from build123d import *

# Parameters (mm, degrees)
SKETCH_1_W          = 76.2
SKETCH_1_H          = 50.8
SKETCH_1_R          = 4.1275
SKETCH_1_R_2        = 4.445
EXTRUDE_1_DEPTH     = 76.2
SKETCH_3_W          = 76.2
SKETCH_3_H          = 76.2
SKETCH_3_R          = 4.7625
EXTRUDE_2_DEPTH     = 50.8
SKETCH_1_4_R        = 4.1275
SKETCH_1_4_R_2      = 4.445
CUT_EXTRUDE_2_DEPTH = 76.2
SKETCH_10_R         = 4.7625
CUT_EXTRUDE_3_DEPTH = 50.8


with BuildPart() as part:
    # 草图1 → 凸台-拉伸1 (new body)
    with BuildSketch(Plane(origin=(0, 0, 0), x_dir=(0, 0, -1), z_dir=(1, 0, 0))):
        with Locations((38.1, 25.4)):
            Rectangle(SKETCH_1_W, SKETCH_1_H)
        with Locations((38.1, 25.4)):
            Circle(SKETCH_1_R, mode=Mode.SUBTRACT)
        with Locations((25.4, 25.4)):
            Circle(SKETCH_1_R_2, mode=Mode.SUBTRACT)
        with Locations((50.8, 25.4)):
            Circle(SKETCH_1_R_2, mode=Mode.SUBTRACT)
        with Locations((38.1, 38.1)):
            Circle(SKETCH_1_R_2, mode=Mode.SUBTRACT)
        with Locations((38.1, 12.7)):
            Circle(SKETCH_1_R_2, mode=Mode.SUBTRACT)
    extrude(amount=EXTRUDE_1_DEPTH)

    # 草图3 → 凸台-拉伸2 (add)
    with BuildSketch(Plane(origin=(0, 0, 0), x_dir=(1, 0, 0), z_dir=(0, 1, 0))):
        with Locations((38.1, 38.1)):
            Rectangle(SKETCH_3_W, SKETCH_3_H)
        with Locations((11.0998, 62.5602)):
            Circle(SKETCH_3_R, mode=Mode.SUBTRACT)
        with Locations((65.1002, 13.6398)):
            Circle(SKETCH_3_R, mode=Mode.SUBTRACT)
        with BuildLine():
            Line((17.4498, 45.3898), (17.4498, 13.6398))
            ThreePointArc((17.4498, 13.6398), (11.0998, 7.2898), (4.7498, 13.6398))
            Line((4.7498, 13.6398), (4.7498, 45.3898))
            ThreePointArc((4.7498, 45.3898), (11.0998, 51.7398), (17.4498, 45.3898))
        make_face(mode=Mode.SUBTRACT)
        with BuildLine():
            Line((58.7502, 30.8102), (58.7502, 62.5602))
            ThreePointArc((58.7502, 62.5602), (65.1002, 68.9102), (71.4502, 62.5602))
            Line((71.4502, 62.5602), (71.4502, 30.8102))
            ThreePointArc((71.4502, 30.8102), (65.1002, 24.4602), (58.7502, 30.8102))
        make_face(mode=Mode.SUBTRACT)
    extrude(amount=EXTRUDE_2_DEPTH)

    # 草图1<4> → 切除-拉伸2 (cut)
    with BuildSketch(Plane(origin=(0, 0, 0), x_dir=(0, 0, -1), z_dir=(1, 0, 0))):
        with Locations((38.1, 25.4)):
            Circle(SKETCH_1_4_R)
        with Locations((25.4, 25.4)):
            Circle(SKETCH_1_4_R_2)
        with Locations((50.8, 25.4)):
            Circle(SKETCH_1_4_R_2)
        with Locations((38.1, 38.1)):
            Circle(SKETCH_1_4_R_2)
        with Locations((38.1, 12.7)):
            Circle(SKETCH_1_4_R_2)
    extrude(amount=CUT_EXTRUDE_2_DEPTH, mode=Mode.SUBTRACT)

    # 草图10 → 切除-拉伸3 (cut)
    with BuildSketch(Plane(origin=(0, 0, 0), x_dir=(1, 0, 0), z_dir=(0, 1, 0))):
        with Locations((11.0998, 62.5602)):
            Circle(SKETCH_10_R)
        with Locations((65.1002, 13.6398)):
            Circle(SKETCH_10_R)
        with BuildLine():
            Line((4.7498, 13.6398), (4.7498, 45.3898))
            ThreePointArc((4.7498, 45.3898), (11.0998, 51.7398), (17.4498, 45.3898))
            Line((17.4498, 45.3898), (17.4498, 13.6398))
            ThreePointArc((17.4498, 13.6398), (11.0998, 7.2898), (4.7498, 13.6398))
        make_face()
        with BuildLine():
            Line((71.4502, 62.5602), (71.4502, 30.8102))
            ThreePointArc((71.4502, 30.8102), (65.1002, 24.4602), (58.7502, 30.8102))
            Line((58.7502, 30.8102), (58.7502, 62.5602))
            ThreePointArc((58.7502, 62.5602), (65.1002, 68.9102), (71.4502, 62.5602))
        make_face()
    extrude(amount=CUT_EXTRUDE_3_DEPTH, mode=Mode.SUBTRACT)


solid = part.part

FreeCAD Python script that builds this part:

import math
import FreeCAD as App
import Part
import Sketcher
from FreeCAD import Vector
Q = App.Units.Quantity

doc = App.newDocument("Part")
body = doc.addObject("PartDesign::Body", "Body")

# Sketch on YZ plane
sketch1 = body.newObject("Sketcher::SketchObject", "Sketch")
sketch1.AttachmentSupport = (doc.getObject("YZ_Plane"), [""])
sketch1.MapMode = "FlatFace"
sketch1.addGeometry([
    Part.LineSegment(Vector(50.8, 0, 0), Vector(0, 0, 0)),  # 0
    Part.LineSegment(Vector(0, 0, 0), Vector(0, -76.2, 0)),  # 1
    Part.LineSegment(Vector(0, -76.2, 0), Vector(50.8, -76.2, 0)),  # 2
    Part.LineSegment(Vector(50.8, -76.2, 0), Vector(50.8, 0, 0)),  # 3
    Part.Circle(Vector(25.4, -25.4, 0), Vector(0, 0, 1), 4.445),  # 4
    Part.Circle(Vector(12.7, -38.1, 0), Vector(0, 0, 1), 4.445),  # 5
    Part.Circle(Vector(25.4, -38.1, 0), Vector(0, 0, 1), 4.1275),  # 6
    Part.Circle(Vector(25.4, -50.8, 0), Vector(0, 0, 1), 4.445),  # 7
    Part.Circle(Vector(38.1, -38.1, 0), Vector(0, 0, 1), 4.445),  # 8
], False)
sketch1.addConstraint([
    Sketcher.Constraint("Coincident", 0, 2, 1, 1),
    Sketcher.Constraint("Coincident", 1, 2, 2, 1),
    Sketcher.Constraint("Coincident", 2, 2, 3, 1),
    Sketcher.Constraint("Coincident", 3, 2, 0, 1),
    Sketcher.Constraint("Horizontal", 0),
    Sketcher.Constraint("Vertical", 1),
    Sketcher.Constraint("Horizontal", 2),
    Sketcher.Constraint("Vertical", 3),
    Sketcher.Constraint("Coincident", 0, 2, -1, 1),
    Sketcher.Constraint("Equal", 4, 5),
    Sketcher.Constraint("Equal", 5, 7),
    Sketcher.Constraint("Equal", 7, 8),
    Sketcher.Constraint("Horizontal", 5, 3, 6, 3),
    Sketcher.Constraint("Horizontal", 6, 3, 8, 3),
    Sketcher.Constraint("Vertical", 4, 3, 6, 3),
    Sketcher.Constraint("Vertical", 6, 3, 7, 3),
    Sketcher.Constraint("Diameter", 4, Q("0.35 in")),
    Sketcher.Constraint("DistanceX", 0, 2, 0, 1, Q("2 in")),
    Sketcher.Constraint("DistanceY", 1, 2, 1, 1, Q("3 in")),
    Sketcher.Constraint("Diameter", 6, Q("0.325 in")),
    Sketcher.Constraint("DistanceX", -1, 1, 4, 3, Q("1 in")),
    Sketcher.Constraint("DistanceY", 4, 3, -1, 1, Q("1 in")),
    Sketcher.Constraint("DistanceY", 7, 3, -1, 1, Q("2 in")),
    Sketcher.Constraint("DistanceX", 5, 3, 8, 3, Q("1 in")),
    Sketcher.Constraint("DistanceX", -1, 1, 5, 3, Q("0.5 in")),
    Sketcher.Constraint("DistanceY", 5, 3, -1, 1, Q("1.5 in")),
])
pad1 = body.newObject("PartDesign::Pad", "Pad")
pad1.Profile = sketch1
pad1.Length = Q("3 in")

# Sketch on XZ plane
sketch2 = body.newObject("Sketcher::SketchObject", "Sketch001")
sketch2.AttachmentSupport = (doc.getObject("XZ_Plane"), [""])
sketch2.MapMode = "FlatFace"
sketch2.addGeometry([
    Part.LineSegment(Vector(0, -76.2, 0), Vector(0, 0, 0)),  # 0
    Part.LineSegment(Vector(0, 0, 0), Vector(76.2, 0, 0)),  # 1
    Part.LineSegment(Vector(76.2, 0, 0), Vector(76.2, -76.2, 0)),  # 2
    Part.LineSegment(Vector(76.2, -76.2, 0), Vector(0, -76.2, 0)),  # 3
    Part.ArcOfCircle(Part.Circle(Vector(11.0998, -45.3898, 0), Vector(0, 0, 1), 6.35), math.radians(180), math.radians(360)),  # 4
    Part.LineSegment(Vector(17.4498, -45.3898, 0), Vector(17.4498, -13.6398, 0)),  # 5
    Part.ArcOfCircle(Part.Circle(Vector(11.0998, -13.6398, 0), Vector(0, 0, 1), 6.35), math.radians(0), math.radians(180)),  # 6
    Part.LineSegment(Vector(4.7498, -13.6398, 0), Vector(4.7498, -45.3898, 0)),  # 7
    Part.Circle(Vector(65.1002, -13.6398, 0), Vector(0, 0, 1), 4.7625),  # 8
    Part.Circle(Vector(11.0998, -62.5602, 0), Vector(0, 0, 1), 4.7625),  # 9
    Part.ArcOfCircle(Part.Circle(Vector(65.1002, -30.8102, 0), Vector(0, 0, 1), 6.35), math.radians(0), math.radians(180)),  # 10
    Part.LineSegment(Vector(58.7502, -30.8102, 0), Vector(58.7502, -62.5602, 0)),  # 11
    Part.ArcOfCircle(Part.Circle(Vector(65.1002, -62.5602, 0), Vector(0, 0, 1), 6.35), math.radians(180), math.radians(360)),  # 12
    Part.LineSegment(Vector(71.4502, -62.5602, 0), Vector(71.4502, -30.8102, 0)),  # 13
], False)
sketch2.addConstraint([
    Sketcher.Constraint("Coincident", 0, 2, 1, 1),
    Sketcher.Constraint("Coincident", 1, 2, 2, 1),
    Sketcher.Constraint("Coincident", 2, 2, 3, 1),
    Sketcher.Constraint("Coincident", 3, 2, 0, 1),
    Sketcher.Constraint("Tangent", 4, 2, 5, 1),
    Sketcher.Constraint("Tangent", 5, 2, 6, 1),
    Sketcher.Constraint("Tangent", 6, 2, 7, 1),
    Sketcher.Constraint("Tangent", 7, 2, 4, 1),
    Sketcher.Constraint("Tangent", 10, 2, 11, 1),
    Sketcher.Constraint("Tangent", 11, 2, 12, 1),
    Sketcher.Constraint("Tangent", 12, 2, 13, 1),
    Sketcher.Constraint("Tangent", 13, 2, 10, 1),
    Sketcher.Constraint("Vertical", 0),
    Sketcher.Constraint("Horizontal", 1),
    Sketcher.Constraint("Vertical", 2),
    Sketcher.Constraint("Horizontal", 3),
    Sketcher.Constraint("Vertical", 5),
    Sketcher.Constraint("Vertical", 7),
    Sketcher.Constraint("Vertical", 11),
    Sketcher.Constraint("Vertical", 13),
    Sketcher.Constraint("Coincident", 0, 2, -1, 1),
    Sketcher.Constraint("Equal", 8, 9),
    Sketcher.Constraint("Equal", 6, 10),
    Sketcher.Constraint("Horizontal", 6, 3, 8, 3),
    Sketcher.Constraint("Horizontal", 9, 3, 12, 3),
    Sketcher.Constraint("Vertical", 6, 3, 9, 3),
    Sketcher.Constraint("Vertical", 8, 3, 10, 3),
    Sketcher.Constraint("Equal", 3, 0),
    Sketcher.Constraint("Equal", 7, 11),
    Sketcher.Constraint("DistanceX", 1, 1, 1, 2, Q("3 in")),
    Sketcher.Constraint("Radius", 4, Q("0.25 in")),
    Sketcher.Constraint("Diameter", 8, Q("0.375 in")),
    Sketcher.Constraint("DistanceY", 5, 1, 5, 2, Q("1.25 in")),
    Sketcher.Constraint("DistanceX", -1, 1, 4, 3, Q("0.437 in")),
    Sketcher.Constraint("DistanceY", 4, 3, -1, 1, Q("1.787 in")),
    Sketcher.Constraint("DistanceX", -1, 1, 8, 3, Q("2.563 in")),
    Sketcher.Constraint("DistanceY", 9, 3, -1, 1, Q("2.463 in")),
])
pad2 = body.newObject("PartDesign::Pad", "Pad001")
pad2.Profile = sketch2
pad2.Length = Q("2 in")
pad2.Reversed = True

# Sketch on YZ plane
sketch3 = body.newObject("Sketcher::SketchObject", "Sketch002")
sketch3.AttachmentSupport = (doc.getObject("YZ_Plane"), [""])
sketch3.MapMode = "FlatFace"
sketch3.addGeometry([
    Part.Circle(Vector(25.4, -38.1, 0), Vector(0, 0, 1), 4.1275),  # 0
    Part.Circle(Vector(25.4, -25.4, 0), Vector(0, 0, 1), 4.445),  # 1
    Part.Circle(Vector(25.4, -50.8, 0), Vector(0, 0, 1), 4.445),  # 2
    Part.Circle(Vector(38.1, -38.1, 0), Vector(0, 0, 1), 4.445),  # 3
    Part.Circle(Vector(12.7, -38.1, 0), Vector(0, 0, 1), 4.445),  # 4
], False)
sketch3.addConstraint([
    Sketcher.Constraint("Equal", 1, 2),
    Sketcher.Constraint("Equal", 2, 3),
    Sketcher.Constraint("Equal", 3, 4),
    Sketcher.Constraint("Horizontal", 0, 3, 3, 3),
    Sketcher.Constraint("Horizontal", 3, 3, 4, 3),
    Sketcher.Constraint("Vertical", 0, 3, 1, 3),
    Sketcher.Constraint("Vertical", 1, 3, 2, 3),
    Sketcher.Constraint("Diameter", 1, Q("0.35 in")),
    Sketcher.Constraint("Diameter", 0, Q("0.325 in")),
    Sketcher.Constraint("DistanceX", -1, 1, 0, 3, Q("1 in")),
    Sketcher.Constraint("DistanceY", 1, 3, -1, 1, Q("1 in")),
    Sketcher.Constraint("DistanceY", 2, 3, -1, 1, Q("2 in")),
    Sketcher.Constraint("DistanceX", 4, 3, 3, 3, Q("1 in")),
    Sketcher.Constraint("DistanceY", 0, 3, -1, 1, Q("1.5 in")),
    Sketcher.Constraint("DistanceX", -1, 1, 3, 3, Q("1.5 in")),
])
pocket1 = body.newObject("PartDesign::Pocket", "Pocket")
pocket1.Profile = sketch3
pocket1.Length = Q("3 in")
pocket1.Reversed = True

# Sketch on XZ plane
sketch4 = body.newObject("Sketcher::SketchObject", "Sketch003")
sketch4.AttachmentSupport = (doc.getObject("XZ_Plane"), [""])
sketch4.MapMode = "FlatFace"
sketch4.addGeometry([
    Part.Circle(Vector(11.0998, -62.5602, 0), Vector(0, 0, 1), 4.7625),  # 0
    Part.Circle(Vector(65.1002, -13.6398, 0), Vector(0, 0, 1), 4.7625),  # 1
    Part.LineSegment(Vector(4.7498, -45.3898, 0), Vector(4.7498, -13.6398, 0)),  # 2
    Part.ArcOfCircle(Part.Circle(Vector(11.0998, -13.6398, 0), Vector(0, 0, 1), 6.35), math.radians(0), math.radians(180)),  # 3
    Part.LineSegment(Vector(17.4498, -13.6398, 0), Vector(17.4498, -45.3898, 0)),  # 4
    Part.ArcOfCircle(Part.Circle(Vector(11.0998, -45.3898, 0), Vector(0, 0, 1), 6.35), math.radians(180), math.radians(360)),  # 5
    Part.LineSegment(Vector(71.4502, -30.8102, 0), Vector(71.4502, -62.5602, 0)),  # 6
    Part.ArcOfCircle(Part.Circle(Vector(65.1002, -62.5602, 0), Vector(0, 0, 1), 6.35), math.radians(180), math.radians(360)),  # 7
    Part.LineSegment(Vector(58.7502, -62.5602, 0), Vector(58.7502, -30.8102, 0)),  # 8
    Part.ArcOfCircle(Part.Circle(Vector(65.1002, -30.8102, 0), Vector(0, 0, 1), 6.35), math.radians(0), math.radians(180)),  # 9
], False)
sketch4.addConstraint([
    Sketcher.Constraint("Tangent", 2, 2, 3, 2),
    Sketcher.Constraint("Tangent", 3, 1, 4, 1),
    Sketcher.Constraint("Tangent", 4, 2, 5, 2),
    Sketcher.Constraint("Tangent", 5, 1, 2, 1),
    Sketcher.Constraint("Tangent", 6, 2, 7, 2),
    Sketcher.Constraint("Tangent", 7, 1, 8, 1),
    Sketcher.Constraint("Tangent", 8, 2, 9, 2),
    Sketcher.Constraint("Tangent", 9, 1, 6, 1),
    Sketcher.Constraint("Vertical", 2),
    Sketcher.Constraint("Vertical", 4),
    Sketcher.Constraint("Vertical", 6),
    Sketcher.Constraint("Vertical", 8),
    Sketcher.Constraint("Equal", 0, 1),
    Sketcher.Constraint("Equal", 5, 7),
    Sketcher.Constraint("Horizontal", 1, 3, 3, 3),
    Sketcher.Constraint("Horizontal", 0, 3, 7, 3),
    Sketcher.Constraint("Vertical", 0, 3, 3, 3),
    Sketcher.Constraint("Vertical", 1, 3, 7, 3),
    Sketcher.Constraint("Equal", 4, 6),
    Sketcher.Constraint("Radius", 3, Q("0.25 in")),
    Sketcher.Constraint("Diameter", 0, Q("0.375 in")),
    Sketcher.Constraint("DistanceY", 2, 1, 2, 2, Q("1.25 in")),
    Sketcher.Constraint("DistanceX", -1, 1, 0, 3, Q("0.437 in")),
    Sketcher.Constraint("DistanceY", 0, 3, -1, 1, Q("2.463 in")),
    Sketcher.Constraint("DistanceX", -1, 1, 1, 3, Q("2.563 in")),
    Sketcher.Constraint("DistanceY", 1, 3, -1, 1, Q("0.537 in")),
])
pocket2 = body.newObject("PartDesign::Pocket", "Pocket001")
pocket2.Profile = sketch4
pocket2.Length = Q("2 in")

doc.recompute()
